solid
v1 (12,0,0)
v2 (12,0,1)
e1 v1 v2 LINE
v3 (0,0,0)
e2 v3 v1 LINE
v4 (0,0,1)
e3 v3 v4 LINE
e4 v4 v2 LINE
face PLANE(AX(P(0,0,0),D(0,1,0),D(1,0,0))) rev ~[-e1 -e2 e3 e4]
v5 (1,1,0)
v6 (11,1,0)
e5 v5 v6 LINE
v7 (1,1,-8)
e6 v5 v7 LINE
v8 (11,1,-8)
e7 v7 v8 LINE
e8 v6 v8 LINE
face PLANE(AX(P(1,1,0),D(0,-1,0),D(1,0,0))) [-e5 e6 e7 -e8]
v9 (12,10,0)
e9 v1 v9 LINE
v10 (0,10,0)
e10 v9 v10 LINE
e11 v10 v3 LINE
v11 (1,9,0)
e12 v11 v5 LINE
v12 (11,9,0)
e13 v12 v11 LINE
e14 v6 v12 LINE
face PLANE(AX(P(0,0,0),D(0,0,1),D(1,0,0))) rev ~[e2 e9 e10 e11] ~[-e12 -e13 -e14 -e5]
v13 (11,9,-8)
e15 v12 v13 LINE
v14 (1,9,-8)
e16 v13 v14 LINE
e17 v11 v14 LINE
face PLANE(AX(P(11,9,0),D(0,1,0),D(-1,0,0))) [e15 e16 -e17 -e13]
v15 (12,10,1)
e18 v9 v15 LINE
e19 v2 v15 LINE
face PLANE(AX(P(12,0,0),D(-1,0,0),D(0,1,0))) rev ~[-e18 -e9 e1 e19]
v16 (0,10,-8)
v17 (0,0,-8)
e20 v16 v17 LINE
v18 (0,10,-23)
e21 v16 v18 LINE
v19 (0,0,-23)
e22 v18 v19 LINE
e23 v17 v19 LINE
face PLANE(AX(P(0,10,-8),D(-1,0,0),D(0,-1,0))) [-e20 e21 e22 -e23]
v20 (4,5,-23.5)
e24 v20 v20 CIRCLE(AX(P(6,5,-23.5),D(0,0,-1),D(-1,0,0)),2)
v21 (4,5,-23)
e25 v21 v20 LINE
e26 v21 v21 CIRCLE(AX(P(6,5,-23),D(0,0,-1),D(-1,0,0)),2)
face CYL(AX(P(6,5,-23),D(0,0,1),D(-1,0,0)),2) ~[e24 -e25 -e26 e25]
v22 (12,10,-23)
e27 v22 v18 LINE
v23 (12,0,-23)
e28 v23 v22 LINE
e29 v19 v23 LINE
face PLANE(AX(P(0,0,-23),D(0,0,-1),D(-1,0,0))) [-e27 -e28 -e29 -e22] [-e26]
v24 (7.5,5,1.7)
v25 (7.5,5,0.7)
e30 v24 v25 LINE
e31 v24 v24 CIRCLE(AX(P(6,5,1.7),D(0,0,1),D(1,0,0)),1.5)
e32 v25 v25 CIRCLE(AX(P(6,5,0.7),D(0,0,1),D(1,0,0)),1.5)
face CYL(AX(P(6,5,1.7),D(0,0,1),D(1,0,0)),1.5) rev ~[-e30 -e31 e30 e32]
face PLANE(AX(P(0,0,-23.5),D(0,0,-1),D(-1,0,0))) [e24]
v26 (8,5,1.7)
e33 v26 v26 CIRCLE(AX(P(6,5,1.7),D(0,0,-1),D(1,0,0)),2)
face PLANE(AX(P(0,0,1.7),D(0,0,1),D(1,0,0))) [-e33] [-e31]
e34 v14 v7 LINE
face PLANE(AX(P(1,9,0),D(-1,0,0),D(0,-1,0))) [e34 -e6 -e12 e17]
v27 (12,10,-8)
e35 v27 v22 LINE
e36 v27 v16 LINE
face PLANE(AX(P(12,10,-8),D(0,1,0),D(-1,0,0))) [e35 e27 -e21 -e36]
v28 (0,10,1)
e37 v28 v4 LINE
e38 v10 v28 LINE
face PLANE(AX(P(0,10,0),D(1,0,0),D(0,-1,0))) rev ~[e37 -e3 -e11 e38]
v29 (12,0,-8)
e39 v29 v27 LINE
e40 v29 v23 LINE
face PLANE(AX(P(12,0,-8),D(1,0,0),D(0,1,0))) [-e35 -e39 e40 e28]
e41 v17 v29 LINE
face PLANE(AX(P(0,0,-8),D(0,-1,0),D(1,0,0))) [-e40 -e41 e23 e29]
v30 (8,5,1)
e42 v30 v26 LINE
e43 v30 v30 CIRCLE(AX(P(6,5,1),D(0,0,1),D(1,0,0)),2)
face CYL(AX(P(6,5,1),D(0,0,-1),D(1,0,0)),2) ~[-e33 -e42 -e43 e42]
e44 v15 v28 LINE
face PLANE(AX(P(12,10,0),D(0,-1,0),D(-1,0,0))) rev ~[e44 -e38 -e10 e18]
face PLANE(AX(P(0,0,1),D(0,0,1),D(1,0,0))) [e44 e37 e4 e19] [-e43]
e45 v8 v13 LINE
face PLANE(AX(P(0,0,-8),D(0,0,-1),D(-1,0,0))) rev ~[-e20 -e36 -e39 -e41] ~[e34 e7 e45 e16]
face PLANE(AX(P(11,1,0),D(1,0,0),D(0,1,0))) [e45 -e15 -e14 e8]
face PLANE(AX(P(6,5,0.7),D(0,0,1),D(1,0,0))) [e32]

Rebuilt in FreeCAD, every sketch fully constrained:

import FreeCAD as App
import Part
import Sketcher


def add_polygon(sketch, points):
    """Adds a closed chain of lines whose ends are joined by coincident constraints."""
    first, n = sketch.GeometryCount, len(points)
    for a, b in zip(points, points[1:] + points[:1]):
        sketch.addGeometry(Part.LineSegment(App.Vector(*a, 0), App.Vector(*b, 0)), False)
    for i in range(n):
        sketch.addConstraint(Sketcher.Constraint("Coincident", first + i, 2, first + (i + 1) % n, 1))

doc = App.newDocument("Part")
params = doc.addObject("Spreadsheet::Sheet", "Params")
for row, (alias, value) in enumerate([
    ("sketch1_width", "12 mm"),
    ("sketch1_height", "10 mm"),
    ("pad1_length", "1 mm"),
    ("sketch2_diameter", "4 mm"),
    ("pad2_length", "0.7 mm"),
    ("sketch3_width", "10 mm"),
    ("sketch3_height", "8 mm"),
    ("pad3_length", "8 mm"),
    ("sketch4_width", "12 mm"),
    ("sketch4_height", "10 mm"),
    ("pad4_length", "15 mm"),
    ("sketch5_diameter", "3 mm"),
    ("pocket1_length", "1 mm"),
    ("sketch6_diameter", "4 mm"),
    ("pad5_length", "0.5 mm"),
], start=1):
    params.set(f"A{row}", alias)
    params.set(f"B{row}", "=" + value)
    params.setAlias(f"B{row}", alias)

body = doc.addObject("PartDesign::Body", "Body")

# Sketch on XY plane
sketch1 = body.newObject("Sketcher::SketchObject", "Sketch")
sketch1.AttachmentSupport = (doc.getObject("XY_Plane"), [""])
sketch1.MapMode = "FlatFace"
add_polygon(sketch1, [(0, 10), (0, 0), (12, 0), (12, 10)])  # lines 0-3
sketch1.addConstraint([
    Sketcher.Constraint("Vertical", 0),
    Sketcher.Constraint("Horizontal", 1),
    Sketcher.Constraint("Vertical", 2),
    Sketcher.Constraint("Horizontal", 3),
    Sketcher.Constraint("Coincident", 0, 2, -1, 1),
    Sketcher.Constraint("DistanceX", 1, 1, 1, 2, 12.0),
    Sketcher.Constraint("DistanceY", 0, 2, 0, 1, 10.0),
])
sketch1.setExpression("Constraints[9]", "Params.sketch1_width")
sketch1.setExpression("Constraints[10]", "Params.sketch1_height")
pad1 = body.newObject("PartDesign::Pad", "Pad")
pad1.Profile = sketch1
pad1.setExpression("Length", "Params.pad1_length")

# Sketch on XY plane
sketch2 = body.newObject("Sketcher::SketchObject", "Sketch001")
sketch2.AttachmentSupport = (doc.getObject("XY_Plane"), [""])
sketch2.MapMode = "FlatFace"
sketch2.AttachmentOffset = App.Placement(App.Vector(0, 0, 1), App.Rotation())
sketch2.addGeometry(Part.Circle(App.Vector(6, 5, 0), App.Vector(0, 0, 1), 2), False)
sketch2.addConstraint([
    Sketcher.Constraint("Diameter", 0, 4.0),
    Sketcher.Constraint("DistanceX", -1, 1, 0, 3, 6.0),
    Sketcher.Constraint("DistanceY", -1, 1, 0, 3, 5.0),
])
sketch2.setExpression("Constraints[0]", "Params.sketch2_diameter")
pad2 = body.newObject("PartDesign::Pad", "Pad001")
pad2.Profile = sketch2
pad2.setExpression("Length", "Params.pad2_length")

# Sketch on XY plane
sketch3 = body.newObject("Sketcher::SketchObject", "Sketch002")
sketch3.AttachmentSupport = (doc.getObject("XY_Plane"), [""])
sketch3.MapMode = "FlatFace"
add_polygon(sketch3, [(1, 9), (11, 9), (11, 1), (1, 1)])  # lines 0-3
sketch3.addConstraint([
    Sketcher.Constraint("Horizontal", 0),
    Sketcher.Constraint("Vertical", 1),
    Sketcher.Constraint("Horizontal", 2),
    Sketcher.Constraint("Vertical", 3),
    Sketcher.Constraint("DistanceX", 0, 1, 0, 2, 10.0),
    Sketcher.Constraint("DistanceY", 1, 2, 1, 1, 8.0),
    Sketcher.Constraint("DistanceY", -1, 1, 1, 2, 1.0),
    Sketcher.Constraint("DistanceX", -1, 1, 2, 2, 1.0),
])
sketch3.setExpression("Constraints[8]", "Params.sketch3_width")
sketch3.setExpression("Constraints[9]", "Params.sketch3_height")
pad3 = body.newObject("PartDesign::Pad", "Pad002")
pad3.Profile = sketch3
pad3.setExpression("Length", "Params.pad3_length")
pad3.Reversed = True

# Sketch on XY plane
sketch4 = body.newObject("Sketcher::SketchObject", "Sketch003")
sketch4.AttachmentSupport = (doc.getObject("XY_Plane"), [""])
sketch4.MapMode = "FlatFace"
sketch4.AttachmentOffset = App.Placement(App.Vector(0, 0, -8), App.Rotation())
add_polygon(sketch4, [(0, 10), (12, 10), (12, 0), (0, 0)])  # lines 0-3
sketch4.addConstraint([
    Sketcher.Constraint("Horizontal", 0),
    Sketcher.Constraint("Vertical", 1),
    Sketcher.Constraint("Horizontal", 2),
    Sketcher.Constraint("Vertical", 3),
    Sketcher.Constraint("Coincident", 2, 2, -1, 1),
    Sketcher.Constraint("DistanceX", 0, 1, 0, 2, 12.0),
    Sketcher.Constraint("DistanceY", 1, 2, 1, 1, 10.0),
])
sketch4.setExpression("Constraints[9]", "Params.sketch4_width")
sketch4.setExpression("Constraints[10]", "Params.sketch4_height")
pad4 = body.newObject("PartDesign::Pad", "Pad003")
pad4.Profile = sketch4
pad4.setExpression("Length", "Params.pad4_length")
pad4.Reversed = True

# Sketch on XY plane
sketch5 = body.newObject("Sketcher::SketchObject", "Sketch004")
sketch5.AttachmentSupport = (doc.getObject("XY_Plane"), [""])
sketch5.MapMode = "FlatFace"
sketch5.AttachmentOffset = App.Placement(App.Vector(0, 0, 1.7), App.Rotation())
sketch5.addGeometry(Part.Circle(App.Vector(6, 5, 0), App.Vector(0, 0, 1), 1.5), False)
sketch5.addConstraint([
    Sketcher.Constraint("Diameter", 0, 3.0),
    Sketcher.Constraint("DistanceX", -1, 1, 0, 3, 6.0),
    Sketcher.Constraint("DistanceY", -1, 1, 0, 3, 5.0),
])
sketch5.setExpression("Constraints[0]", "Params.sketch5_diameter")
pocket1 = body.newObject("PartDesign::Pocket", "Pocket")
pocket1.Profile = sketch5
pocket1.setExpression("Length", "Params.pocket1_length")

# Sketch on XY plane
sketch6 = body.newObject("Sketcher::SketchObject", "Sketch005")
sketch6.AttachmentSupport = (doc.getObject("XY_Plane"), [""])
sketch6.MapMode = "FlatFace"
sketch6.AttachmentOffset = App.Placement(App.Vector(0, 0, -23), App.Rotation())
sketch6.addGeometry(Part.Circle(App.Vector(6, 5, 0), App.Vector(0, 0, 1), 2), False)
sketch6.addConstraint([
    Sketcher.Constraint("Diameter", 0, 4.0),
    Sketcher.Constraint("DistanceY", -1, 1, 0, 3, 5.0),
    Sketcher.Constraint("DistanceX", -1, 1, 0, 3, 6.0),
])
sketch6.setExpression("Constraints[0]", "Params.sketch6_diameter")
pad5 = body.newObject("PartDesign::Pad", "Pad004")
pad5.Profile = sketch6
pad5.setExpression("Length", "Params.pad5_length")
pad5.Reversed = True

doc.recompute()
